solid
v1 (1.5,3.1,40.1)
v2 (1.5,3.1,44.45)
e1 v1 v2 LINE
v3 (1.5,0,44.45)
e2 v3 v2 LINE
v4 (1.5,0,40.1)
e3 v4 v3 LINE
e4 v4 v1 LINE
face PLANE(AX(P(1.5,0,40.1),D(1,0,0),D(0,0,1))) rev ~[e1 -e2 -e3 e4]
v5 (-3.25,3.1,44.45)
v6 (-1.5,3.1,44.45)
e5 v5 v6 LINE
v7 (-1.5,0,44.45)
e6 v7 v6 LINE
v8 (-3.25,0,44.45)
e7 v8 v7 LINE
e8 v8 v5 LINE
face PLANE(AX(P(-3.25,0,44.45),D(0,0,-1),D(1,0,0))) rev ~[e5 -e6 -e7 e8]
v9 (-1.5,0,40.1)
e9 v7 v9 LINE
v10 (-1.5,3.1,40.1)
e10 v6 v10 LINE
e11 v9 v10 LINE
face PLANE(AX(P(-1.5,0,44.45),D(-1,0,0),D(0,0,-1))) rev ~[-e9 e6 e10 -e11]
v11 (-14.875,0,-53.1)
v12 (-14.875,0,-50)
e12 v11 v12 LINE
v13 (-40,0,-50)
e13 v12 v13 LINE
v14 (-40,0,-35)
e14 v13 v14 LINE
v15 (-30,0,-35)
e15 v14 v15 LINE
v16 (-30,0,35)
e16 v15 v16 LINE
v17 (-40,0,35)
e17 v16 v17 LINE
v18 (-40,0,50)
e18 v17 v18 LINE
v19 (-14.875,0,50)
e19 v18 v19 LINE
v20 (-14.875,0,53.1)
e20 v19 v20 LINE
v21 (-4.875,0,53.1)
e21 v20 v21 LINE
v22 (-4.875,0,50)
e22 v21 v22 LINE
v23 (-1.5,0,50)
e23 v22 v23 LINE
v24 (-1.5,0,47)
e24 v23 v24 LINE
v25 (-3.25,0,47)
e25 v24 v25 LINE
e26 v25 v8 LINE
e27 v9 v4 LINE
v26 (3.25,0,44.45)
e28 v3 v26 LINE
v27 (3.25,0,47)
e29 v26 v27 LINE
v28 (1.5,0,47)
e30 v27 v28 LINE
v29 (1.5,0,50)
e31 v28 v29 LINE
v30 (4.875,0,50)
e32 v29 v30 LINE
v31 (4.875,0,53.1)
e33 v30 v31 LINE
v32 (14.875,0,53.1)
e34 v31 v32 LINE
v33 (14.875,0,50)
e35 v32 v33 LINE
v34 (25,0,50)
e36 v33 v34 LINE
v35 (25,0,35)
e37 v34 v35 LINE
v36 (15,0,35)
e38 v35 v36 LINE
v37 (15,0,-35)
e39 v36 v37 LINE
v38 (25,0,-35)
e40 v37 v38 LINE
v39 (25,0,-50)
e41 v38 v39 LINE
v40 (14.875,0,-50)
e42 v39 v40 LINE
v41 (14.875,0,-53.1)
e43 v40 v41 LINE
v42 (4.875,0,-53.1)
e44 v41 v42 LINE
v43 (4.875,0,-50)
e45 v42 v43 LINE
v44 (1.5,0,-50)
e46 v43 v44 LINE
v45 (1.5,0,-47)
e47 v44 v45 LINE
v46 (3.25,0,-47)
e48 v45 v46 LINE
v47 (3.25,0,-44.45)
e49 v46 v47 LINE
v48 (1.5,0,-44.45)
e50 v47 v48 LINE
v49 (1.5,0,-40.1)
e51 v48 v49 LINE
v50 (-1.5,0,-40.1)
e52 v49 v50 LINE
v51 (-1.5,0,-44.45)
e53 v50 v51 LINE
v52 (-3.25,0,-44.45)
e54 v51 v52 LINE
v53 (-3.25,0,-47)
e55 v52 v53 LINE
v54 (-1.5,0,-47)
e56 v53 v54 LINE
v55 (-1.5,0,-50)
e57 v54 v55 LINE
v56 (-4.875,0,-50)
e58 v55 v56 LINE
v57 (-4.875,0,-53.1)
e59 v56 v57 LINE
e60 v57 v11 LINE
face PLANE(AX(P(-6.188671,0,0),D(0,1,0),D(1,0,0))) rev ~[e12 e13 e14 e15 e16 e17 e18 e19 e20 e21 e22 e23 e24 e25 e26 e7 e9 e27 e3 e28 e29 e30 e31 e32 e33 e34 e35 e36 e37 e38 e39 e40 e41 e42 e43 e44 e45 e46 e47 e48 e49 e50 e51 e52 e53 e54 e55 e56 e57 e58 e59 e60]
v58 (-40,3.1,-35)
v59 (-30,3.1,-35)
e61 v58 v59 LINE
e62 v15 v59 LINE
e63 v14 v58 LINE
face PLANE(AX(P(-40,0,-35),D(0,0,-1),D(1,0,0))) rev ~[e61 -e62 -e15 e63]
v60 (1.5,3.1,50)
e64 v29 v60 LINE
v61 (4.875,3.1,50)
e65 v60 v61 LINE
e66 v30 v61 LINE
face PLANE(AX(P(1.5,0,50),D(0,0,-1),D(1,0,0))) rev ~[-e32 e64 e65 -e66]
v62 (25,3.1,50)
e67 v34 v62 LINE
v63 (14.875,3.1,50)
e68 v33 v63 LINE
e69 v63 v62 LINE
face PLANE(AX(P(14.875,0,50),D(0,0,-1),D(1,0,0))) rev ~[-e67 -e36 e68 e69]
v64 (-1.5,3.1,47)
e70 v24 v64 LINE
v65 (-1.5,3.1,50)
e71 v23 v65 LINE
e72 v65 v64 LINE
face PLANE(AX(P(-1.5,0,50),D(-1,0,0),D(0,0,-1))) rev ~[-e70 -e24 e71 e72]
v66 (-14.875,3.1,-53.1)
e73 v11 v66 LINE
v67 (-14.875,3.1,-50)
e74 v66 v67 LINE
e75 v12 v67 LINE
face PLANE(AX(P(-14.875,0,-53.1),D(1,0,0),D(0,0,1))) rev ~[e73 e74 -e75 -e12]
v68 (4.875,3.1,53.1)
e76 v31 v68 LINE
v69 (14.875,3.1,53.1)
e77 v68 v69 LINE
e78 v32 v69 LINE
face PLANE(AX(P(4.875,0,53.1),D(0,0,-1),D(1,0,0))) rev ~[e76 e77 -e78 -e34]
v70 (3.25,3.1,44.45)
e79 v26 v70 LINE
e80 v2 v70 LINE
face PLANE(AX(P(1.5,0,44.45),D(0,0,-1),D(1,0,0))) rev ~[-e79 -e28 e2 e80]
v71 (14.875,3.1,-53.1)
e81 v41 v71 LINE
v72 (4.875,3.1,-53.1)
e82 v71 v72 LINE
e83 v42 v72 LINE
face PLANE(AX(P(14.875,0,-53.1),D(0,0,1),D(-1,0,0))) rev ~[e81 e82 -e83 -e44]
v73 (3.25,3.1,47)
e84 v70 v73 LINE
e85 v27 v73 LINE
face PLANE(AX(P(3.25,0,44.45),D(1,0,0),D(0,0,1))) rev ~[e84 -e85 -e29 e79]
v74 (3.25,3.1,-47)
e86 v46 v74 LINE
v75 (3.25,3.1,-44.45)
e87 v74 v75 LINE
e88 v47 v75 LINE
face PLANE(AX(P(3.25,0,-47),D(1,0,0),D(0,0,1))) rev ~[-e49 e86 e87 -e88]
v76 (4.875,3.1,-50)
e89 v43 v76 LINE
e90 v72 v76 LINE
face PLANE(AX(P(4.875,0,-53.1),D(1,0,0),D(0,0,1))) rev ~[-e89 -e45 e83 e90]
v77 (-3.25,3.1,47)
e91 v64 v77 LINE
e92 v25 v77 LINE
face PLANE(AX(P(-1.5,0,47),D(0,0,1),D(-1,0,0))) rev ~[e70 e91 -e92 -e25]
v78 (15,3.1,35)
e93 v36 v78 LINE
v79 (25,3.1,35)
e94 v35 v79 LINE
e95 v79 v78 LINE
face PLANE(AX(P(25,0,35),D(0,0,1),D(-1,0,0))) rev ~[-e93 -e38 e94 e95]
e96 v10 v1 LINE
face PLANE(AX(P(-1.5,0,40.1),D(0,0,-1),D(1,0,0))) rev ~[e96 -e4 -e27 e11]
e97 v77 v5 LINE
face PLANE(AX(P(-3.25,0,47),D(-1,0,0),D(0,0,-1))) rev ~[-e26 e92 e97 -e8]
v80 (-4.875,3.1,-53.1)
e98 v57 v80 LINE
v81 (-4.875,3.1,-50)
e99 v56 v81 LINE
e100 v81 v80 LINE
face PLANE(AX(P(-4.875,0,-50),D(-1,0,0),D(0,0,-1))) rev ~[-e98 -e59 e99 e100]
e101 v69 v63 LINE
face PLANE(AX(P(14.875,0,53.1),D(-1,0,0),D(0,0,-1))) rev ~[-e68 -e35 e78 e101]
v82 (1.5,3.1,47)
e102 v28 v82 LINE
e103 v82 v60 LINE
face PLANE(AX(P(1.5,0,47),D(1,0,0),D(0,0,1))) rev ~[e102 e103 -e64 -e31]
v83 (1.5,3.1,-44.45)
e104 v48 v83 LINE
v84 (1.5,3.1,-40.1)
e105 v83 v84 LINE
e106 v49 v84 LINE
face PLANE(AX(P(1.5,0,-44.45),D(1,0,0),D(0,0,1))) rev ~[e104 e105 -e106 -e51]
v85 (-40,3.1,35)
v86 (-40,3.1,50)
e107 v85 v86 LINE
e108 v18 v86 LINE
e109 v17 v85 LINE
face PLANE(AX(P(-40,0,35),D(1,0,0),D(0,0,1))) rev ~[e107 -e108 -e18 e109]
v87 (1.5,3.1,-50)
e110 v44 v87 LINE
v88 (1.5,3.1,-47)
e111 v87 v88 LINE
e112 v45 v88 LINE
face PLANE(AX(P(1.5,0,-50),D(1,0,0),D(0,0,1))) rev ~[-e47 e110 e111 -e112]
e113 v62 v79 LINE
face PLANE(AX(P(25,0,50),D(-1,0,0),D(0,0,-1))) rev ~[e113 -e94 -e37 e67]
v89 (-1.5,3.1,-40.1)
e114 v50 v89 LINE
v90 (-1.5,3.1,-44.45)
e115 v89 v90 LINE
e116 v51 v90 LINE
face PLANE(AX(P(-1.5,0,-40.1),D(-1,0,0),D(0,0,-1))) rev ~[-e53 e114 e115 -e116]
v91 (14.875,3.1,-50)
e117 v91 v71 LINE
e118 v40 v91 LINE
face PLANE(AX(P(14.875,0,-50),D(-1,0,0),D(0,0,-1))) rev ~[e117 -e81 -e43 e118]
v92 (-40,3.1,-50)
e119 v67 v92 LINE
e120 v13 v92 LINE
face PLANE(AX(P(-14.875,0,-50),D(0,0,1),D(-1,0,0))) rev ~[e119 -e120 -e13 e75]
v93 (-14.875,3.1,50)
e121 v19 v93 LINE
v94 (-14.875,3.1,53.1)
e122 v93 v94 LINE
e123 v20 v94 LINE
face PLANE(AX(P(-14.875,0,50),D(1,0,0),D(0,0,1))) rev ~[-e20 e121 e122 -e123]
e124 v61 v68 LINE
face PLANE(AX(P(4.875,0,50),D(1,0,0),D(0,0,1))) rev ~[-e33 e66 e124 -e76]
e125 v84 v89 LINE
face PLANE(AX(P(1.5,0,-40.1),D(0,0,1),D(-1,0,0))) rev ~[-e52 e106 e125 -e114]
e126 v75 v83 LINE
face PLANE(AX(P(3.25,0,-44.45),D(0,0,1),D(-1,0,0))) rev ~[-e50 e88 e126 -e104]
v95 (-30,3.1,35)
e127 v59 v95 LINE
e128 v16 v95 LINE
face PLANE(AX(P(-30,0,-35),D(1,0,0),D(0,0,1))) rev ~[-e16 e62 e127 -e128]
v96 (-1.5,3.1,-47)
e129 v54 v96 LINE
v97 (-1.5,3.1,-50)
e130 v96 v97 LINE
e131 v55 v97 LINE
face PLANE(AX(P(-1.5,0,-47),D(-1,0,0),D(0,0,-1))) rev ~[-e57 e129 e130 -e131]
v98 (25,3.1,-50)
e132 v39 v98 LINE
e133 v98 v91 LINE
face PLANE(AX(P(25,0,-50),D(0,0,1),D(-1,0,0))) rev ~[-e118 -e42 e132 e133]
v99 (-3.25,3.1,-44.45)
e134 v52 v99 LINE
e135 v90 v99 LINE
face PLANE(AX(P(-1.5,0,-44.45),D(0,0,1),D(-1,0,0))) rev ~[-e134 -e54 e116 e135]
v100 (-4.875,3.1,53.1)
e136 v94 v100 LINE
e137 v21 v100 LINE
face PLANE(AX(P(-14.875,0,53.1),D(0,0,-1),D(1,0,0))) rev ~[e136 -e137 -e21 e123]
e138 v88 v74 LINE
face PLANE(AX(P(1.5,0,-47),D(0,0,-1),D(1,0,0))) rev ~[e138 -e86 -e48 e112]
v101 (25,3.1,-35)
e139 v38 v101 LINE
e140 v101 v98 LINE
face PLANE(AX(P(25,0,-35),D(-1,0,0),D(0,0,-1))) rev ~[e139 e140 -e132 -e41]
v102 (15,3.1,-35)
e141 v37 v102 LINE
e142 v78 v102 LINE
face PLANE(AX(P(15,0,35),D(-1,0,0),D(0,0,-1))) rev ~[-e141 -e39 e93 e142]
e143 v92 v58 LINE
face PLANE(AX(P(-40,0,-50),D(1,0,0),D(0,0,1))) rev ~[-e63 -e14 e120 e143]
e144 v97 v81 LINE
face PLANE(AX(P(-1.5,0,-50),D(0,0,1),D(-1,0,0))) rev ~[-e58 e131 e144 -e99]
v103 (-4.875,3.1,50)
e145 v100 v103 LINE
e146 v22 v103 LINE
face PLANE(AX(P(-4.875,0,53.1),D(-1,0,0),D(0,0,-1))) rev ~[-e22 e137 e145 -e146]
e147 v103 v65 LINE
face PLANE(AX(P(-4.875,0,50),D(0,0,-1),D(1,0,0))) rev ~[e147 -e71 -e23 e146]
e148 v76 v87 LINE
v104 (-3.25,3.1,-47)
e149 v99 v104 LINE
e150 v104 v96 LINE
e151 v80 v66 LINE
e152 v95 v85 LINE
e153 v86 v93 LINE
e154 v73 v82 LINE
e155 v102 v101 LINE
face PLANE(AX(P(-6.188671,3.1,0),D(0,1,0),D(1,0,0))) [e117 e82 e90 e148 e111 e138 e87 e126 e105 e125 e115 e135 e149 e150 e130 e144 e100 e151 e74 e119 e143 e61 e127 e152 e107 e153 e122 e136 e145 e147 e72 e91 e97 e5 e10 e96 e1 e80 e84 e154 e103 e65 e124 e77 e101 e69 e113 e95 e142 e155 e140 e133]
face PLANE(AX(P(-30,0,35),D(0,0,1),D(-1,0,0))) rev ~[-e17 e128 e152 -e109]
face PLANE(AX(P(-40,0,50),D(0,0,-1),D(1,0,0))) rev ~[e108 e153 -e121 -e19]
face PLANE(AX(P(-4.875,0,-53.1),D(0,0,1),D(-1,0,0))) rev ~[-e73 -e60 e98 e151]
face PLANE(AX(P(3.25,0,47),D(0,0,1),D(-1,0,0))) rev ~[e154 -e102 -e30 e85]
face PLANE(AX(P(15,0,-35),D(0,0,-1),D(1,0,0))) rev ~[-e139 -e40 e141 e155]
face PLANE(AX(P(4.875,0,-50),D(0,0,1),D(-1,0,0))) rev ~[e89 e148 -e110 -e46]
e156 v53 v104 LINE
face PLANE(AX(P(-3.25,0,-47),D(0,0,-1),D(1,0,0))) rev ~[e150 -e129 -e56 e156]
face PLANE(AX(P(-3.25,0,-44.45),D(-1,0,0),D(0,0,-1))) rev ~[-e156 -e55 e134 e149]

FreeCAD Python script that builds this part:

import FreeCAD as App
import Part
import Sketcher
from FreeCAD import Vector
Q = App.Units.Quantity


def add_polygon(sketch, points):
    """Adds a closed chain of lines whose ends are joined by coincident constraints."""
    first, n = sketch.GeometryCount, len(points)
    for a, b in zip(points, points[1:] + points[:1]):
        sketch.addGeometry(Part.LineSegment(App.Vector(*a, 0), App.Vector(*b, 0)), False)
    for i in range(n):
        sketch.addConstraint(Sketcher.Constraint("Coincident", first + i, 2, first + (i + 1) % n, 1))

doc = App.newDocument("Part")
body = doc.addObject("PartDesign::Body", "Body")

sketch1 = body.newObject("Sketcher::SketchObject", "Sketch")
sketch1.AttachmentSupport = (doc.getObject("XZ_Plane"), [""])
sketch1.MapMode = "FlatFace"
add_polygon(sketch1, [(-40, -50), (-40, -35), (-30, -35), (-30, 35), (-40, 35), (-40, 50), (-14.9, 50), (-14.9, 53.1), (-4.9, 53.1), (-4.9, 50), (-1.5, 50), (-1.5, 47), (-3.2, 47), (-3.2, 44.5), (-1.5, 44.5), (-1.5, 40.1), (1.5, 40.1), (1.5, 44.5), (3.2, 44.5), (3.2, 47), (1.5, 47), (1.5, 50), (4.9, 50), (4.9, 53.1), (14.9, 53.1), (14.9, 50), (25, 50), (25, 35), (15, 35), (15, -35), (25, -35), (25, -50), (14.9, -50), (14.9, -53.1), (4.9, -53.1), (4.9, -50), (1.5, -50), (1.5, -47), (3.2, -47), (3.2, -44.5), (1.5, -44.5), (1.5, -40.1), (-1.5, -40.1), (-1.5, -44.5), (-3.2, -44.5), (-3.2, -47), (-1.5, -47), (-1.5, -50), (-4.9, -50), (-4.9, -53.1), (-14.9, -53.1), (-14.9, -50)])
sketch1.addConstraint(Sketcher.Constraint("Vertical", 0))
sketch1.addConstraint(Sketcher.Constraint("Horizontal", 1))
sketch1.addConstraint(Sketcher.Constraint("Vertical", 2))
sketch1.addConstraint(Sketcher.Constraint("Horizontal", 3))
sketch1.addConstraint(Sketcher.Constraint("Vertical", 4))
sketch1.addConstraint(Sketcher.Constraint("Horizontal", 5))
sketch1.addConstraint(Sketcher.Constraint("Vertical", 6))
sketch1.addConstraint(Sketcher.Constraint("Horizontal", 7))
sketch1.addConstraint(Sketcher.Constraint("Vertical", 8))
sketch1.addConstraint(Sketcher.Constraint("Horizontal", 9))
sketch1.addConstraint(Sketcher.Constraint("Vertical", 10))
sketch1.addConstraint(Sketcher.Constraint("Horizontal", 11))
sketch1.addConstraint(Sketcher.Constraint("Vertical", 12))
sketch1.addConstraint(Sketcher.Constraint("Horizontal", 13))
sketch1.addConstraint(Sketcher.Constraint("Vertical", 14))
sketch1.addConstraint(Sketcher.Constraint("Horizontal", 15))
sketch1.addConstraint(Sketcher.Constraint("Vertical", 16))
sketch1.addConstraint(Sketcher.Constraint("Horizontal", 17))
sketch1.addConstraint(Sketcher.Constraint("Vertical", 18))
sketch1.addConstraint(Sketcher.Constraint("Horizontal", 19))
sketch1.addConstraint(Sketcher.Constraint("Vertical", 20))
sketch1.addConstraint(Sketcher.Constraint("Horizontal", 21))
sketch1.addConstraint(Sketcher.Constraint("Vertical", 22))
sketch1.addConstraint(Sketcher.Constraint("Horizontal", 23))
sketch1.addConstraint(Sketcher.Constraint("Vertical", 24))
sketch1.addConstraint(Sketcher.Constraint("Horizontal", 25))
sketch1.addConstraint(Sketcher.Constraint("Vertical", 26))
sketch1.addConstraint(Sketcher.Constraint("Horizontal", 27))
sketch1.addConstraint(Sketcher.Constraint("Vertical", 28))
sketch1.addConstraint(Sketcher.Constraint("Horizontal", 29))
sketch1.addConstraint(Sketcher.Constraint("Vertical", 30))
sketch1.addConstraint(Sketcher.Constraint("Horizontal", 31))
sketch1.addConstraint(Sketcher.Constraint("Vertical", 32))
sketch1.addConstraint(Sketcher.Constraint("Horizontal", 33))
sketch1.addConstraint(Sketcher.Constraint("Vertical", 34))
sketch1.addConstraint(Sketcher.Constraint("Horizontal", 35))
sketch1.addConstraint(Sketcher.Constraint("Vertical", 36))
sketch1.addConstraint(Sketcher.Constraint("Horizontal", 37))
sketch1.addConstraint(Sketcher.Constraint("Vertical", 38))
sketch1.addConstraint(Sketcher.Constraint("Horizontal", 39))
sketch1.addConstraint(Sketcher.Constraint("Vertical", 40))
sketch1.addConstraint(Sketcher.Constraint("Horizontal", 41))
sketch1.addConstraint(Sketcher.Constraint("Vertical", 42))
sketch1.addConstraint(Sketcher.Constraint("Horizontal", 43))
sketch1.addConstraint(Sketcher.Constraint("Vertical", 44))
sketch1.addConstraint(Sketcher.Constraint("Horizontal", 45))
sketch1.addConstraint(Sketcher.Constraint("Vertical", 46))
sketch1.addConstraint(Sketcher.Constraint("Horizontal", 47))
sketch1.addConstraint(Sketcher.Constraint("Vertical", 48))
sketch1.addConstraint(Sketcher.Constraint("Horizontal", 49))
sketch1.addConstraint(Sketcher.Constraint("Vertical", 50))
sketch1.addConstraint(Sketcher.Constraint("Horizontal", 51))
sketch1.addConstraint(Sketcher.Constraint("Symmetric", 5, 2, 31, 2, -1, 1))
sketch1.addConstraint(Sketcher.Constraint("Symmetric", 7, 2, 33, 2, -1, 1))
sketch1.addConstraint(Sketcher.Constraint("Symmetric", 9, 2, 35, 2, -1, 1))
sketch1.addConstraint(Sketcher.Constraint("Symmetric", 11, 2, 37, 2, -1, 1))
sketch1.addConstraint(Sketcher.Constraint("Symmetric", 13, 2, 39, 2, -1, 1))
sketch1.addConstraint(Sketcher.Constraint("Symmetric", 15, 2, 41, 2, -1, 1))
sketch1.addConstraint(Sketcher.Constraint("Symmetric", 17, 2, 43, 2, -1, 1))
sketch1.addConstraint(Sketcher.Constraint("Symmetric", 19, 2, 45, 2, -1, 1))
sketch1.addConstraint(Sketcher.Constraint("Symmetric", 21, 2, 47, 2, -1, 1))
sketch1.addConstraint(Sketcher.Constraint("Symmetric", 23, 2, 49, 2, -1, 1))
sketch1.addConstraint(Sketcher.Constraint("Symmetric", 13, 2, 16, 2, -2))
sketch1.addConstraint(Sketcher.Constraint("Symmetric", 11, 2, 18, 2, -2))
sketch1.addConstraint(Sketcher.Constraint("Symmetric", 9, 2, 20, 2, -2))
sketch1.addConstraint(Sketcher.Constraint("Symmetric", 7, 2, 22, 2, -2))
sketch1.addConstraint(Sketcher.Constraint("Symmetric", 5, 2, 24, 2, -2))
sketch1.addConstraint(Sketcher.Constraint("Symmetric", 0, 2, 3, 2, -1))
sketch1.addConstraint(Sketcher.Constraint("Symmetric", 26, 2, 29, 2, -1))
sketch1.addConstraint(Sketcher.Constraint("Horizontal", 5, 2, 8, 2))
sketch1.addConstraint(Sketcher.Constraint("Horizontal", 3, 2, 26, 2))
sketch1.addConstraint(Sketcher.Constraint("Horizontal", 47, 2, 50, 2))
sketch1.addConstraint(Sketcher.Constraint("Vertical", 10, 2, 13, 2))
sketch1.addConstraint(Sketcher.Constraint("Equal", 3, 7))
sketch1.addConstraint(Sketcher.Constraint("Equal", 23, 27))
sketch1.addConstraint(Sketcher.Constraint("Equal", 41, 10))
sketch1.addConstraint(Sketcher.Constraint("DistanceX", 1, 1, 1, 2, Q("10 mm")))
sketch1.addConstraint(Sketcher.Constraint("DistanceX", 15, 1, 15, 2, Q("3 mm")))
sketch1.addConstraint(Sketcher.Constraint("DistanceY", 0, 1, 0, 2, Q("15 mm")))
sketch1.addConstraint(Sketcher.Constraint("DistanceY", 2, 1, 2, 2, Q("70 mm")))
sketch1.addConstraint(Sketcher.Constraint("DistanceY", 6, 1, 6, 2, Q("3.1 mm")))
sketch1.addConstraint(Sketcher.Constraint("DistanceX", 0, 2, -1, 1, Q("40 mm")))
sketch1.addConstraint(Sketcher.Constraint("DistanceX", -1, 1, 25, 2, Q("25 mm")))
sketch1.addConstraint(Sketcher.Constraint("DistanceX", 11, 2, 11, 1, Q("1.75 mm")))
sketch1.addConstraint(Sketcher.Constraint("DistanceY", 12, 2, 12, 1, Q("2.55 mm")))
sketch1.addConstraint(Sketcher.Constraint("DistanceY", 14, 2, 14, 1, Q("4.35 mm")))
sketch1.addConstraint(Sketcher.Constraint("DistanceX", 5, 1, 5, 2, Q("25.125 mm")))
pad1 = body.newObject("PartDesign::Pad", "Pad")
pad1.Profile = sketch1
pad1.Length = 3.1
pad1.Reversed = True

doc.recompute()
